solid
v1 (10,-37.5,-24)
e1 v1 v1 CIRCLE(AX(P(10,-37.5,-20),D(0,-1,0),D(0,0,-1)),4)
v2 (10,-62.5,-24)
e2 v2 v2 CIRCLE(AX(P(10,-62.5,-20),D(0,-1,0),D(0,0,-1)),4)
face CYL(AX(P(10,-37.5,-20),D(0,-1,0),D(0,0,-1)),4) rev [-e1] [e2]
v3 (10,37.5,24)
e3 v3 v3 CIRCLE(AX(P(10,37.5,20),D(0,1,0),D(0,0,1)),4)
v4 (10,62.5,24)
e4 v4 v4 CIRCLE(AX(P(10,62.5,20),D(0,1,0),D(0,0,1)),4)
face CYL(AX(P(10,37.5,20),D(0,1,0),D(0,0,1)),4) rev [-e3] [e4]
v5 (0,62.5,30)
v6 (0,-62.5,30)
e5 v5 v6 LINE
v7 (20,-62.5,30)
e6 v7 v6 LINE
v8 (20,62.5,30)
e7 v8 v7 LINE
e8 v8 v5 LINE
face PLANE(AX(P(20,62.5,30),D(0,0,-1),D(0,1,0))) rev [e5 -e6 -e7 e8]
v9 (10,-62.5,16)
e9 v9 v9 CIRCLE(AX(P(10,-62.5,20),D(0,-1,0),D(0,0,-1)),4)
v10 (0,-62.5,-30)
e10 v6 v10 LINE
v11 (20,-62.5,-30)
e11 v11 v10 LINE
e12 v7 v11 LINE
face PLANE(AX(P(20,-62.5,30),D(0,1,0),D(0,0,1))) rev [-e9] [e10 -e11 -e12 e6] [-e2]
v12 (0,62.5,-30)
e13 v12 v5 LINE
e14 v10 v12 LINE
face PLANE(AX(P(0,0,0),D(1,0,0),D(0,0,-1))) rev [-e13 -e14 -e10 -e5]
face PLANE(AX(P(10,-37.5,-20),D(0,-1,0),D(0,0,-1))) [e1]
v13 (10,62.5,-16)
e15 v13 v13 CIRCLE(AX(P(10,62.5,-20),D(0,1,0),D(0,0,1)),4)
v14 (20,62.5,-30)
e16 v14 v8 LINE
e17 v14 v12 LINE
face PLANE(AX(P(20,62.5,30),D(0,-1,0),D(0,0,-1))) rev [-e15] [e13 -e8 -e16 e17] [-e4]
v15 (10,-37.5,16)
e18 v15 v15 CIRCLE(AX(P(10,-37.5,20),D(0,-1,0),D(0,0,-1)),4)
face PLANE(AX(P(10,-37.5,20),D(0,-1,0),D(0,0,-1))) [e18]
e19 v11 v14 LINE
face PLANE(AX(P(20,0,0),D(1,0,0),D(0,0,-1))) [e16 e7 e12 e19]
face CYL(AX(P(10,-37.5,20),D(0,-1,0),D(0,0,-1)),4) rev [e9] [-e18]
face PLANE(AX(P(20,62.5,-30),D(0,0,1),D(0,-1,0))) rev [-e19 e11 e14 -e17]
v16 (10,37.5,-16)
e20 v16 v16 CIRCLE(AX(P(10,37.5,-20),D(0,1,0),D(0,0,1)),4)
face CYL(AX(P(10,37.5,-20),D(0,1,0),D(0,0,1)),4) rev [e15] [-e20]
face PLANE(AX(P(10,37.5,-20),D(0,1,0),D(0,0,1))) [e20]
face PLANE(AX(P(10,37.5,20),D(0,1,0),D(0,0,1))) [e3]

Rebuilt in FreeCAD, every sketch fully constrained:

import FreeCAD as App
import Part
import Sketcher
from FreeCAD import Vector

doc = App.newDocument("Part")
body = doc.addObject("PartDesign::Body", "Body")

# Sketch on YZ plane
sketch1 = doc.addObject("Sketcher::SketchObject", "Sketch")
body.addObject(sketch1)
sketch1.AttachmentSupport = (doc.YZ_Plane, [""])
sketch1.MapMode = "FlatFace"
sketch1.addGeometry([
    Part.LineSegment(Vector(62, 30, 0), Vector(-62, 30, 0)),
    Part.LineSegment(Vector(-62, 30, 0), Vector(-62, -30, 0)),
    Part.LineSegment(Vector(-62, -30, 0), Vector(62, -30, 0)),
    Part.LineSegment(Vector(62, -30, 0), Vector(62, 30, 0)),
], False)
sketch1.addConstraint([
    Sketcher.Constraint("Coincident", 0, 2, 1, 1),
    Sketcher.Constraint("Coincident", 1, 2, 2, 1),
    Sketcher.Constraint("Coincident", 2, 2, 3, 1),
    Sketcher.Constraint("Coincident", 3, 2, 0, 1),
    Sketcher.Constraint("Horizontal", 0),
    Sketcher.Constraint("Vertical", 1),
    Sketcher.Constraint("Horizontal", 2),
    Sketcher.Constraint("Vertical", 3),
    Sketcher.Constraint("Symmetric", 0, 2, 2, 2, -1, 1),
    Sketcher.Constraint("DistanceX", 0, 2, 0, 1, 125.0),
    Sketcher.Constraint("DistanceY", 1, 2, 1, 1, 60.0),
])
pad1 = doc.addObject("PartDesign::Pad", "Pad")
body.addObject(pad1)
pad1.Profile = sketch1
pad1.Length = 20

# Sketch on XZ plane
sketch2 = doc.addObject("Sketcher::SketchObject", "Sketch001")
body.addObject(sketch2)
sketch2.AttachmentSupport = (doc.XZ_Plane, [""])
sketch2.MapMode = "FlatFace"
sketch2.AttachmentOffset = App.Placement(Vector(0, 0, -62.5), App.Rotation())
sketch2.addGeometry([
    Part.Circle(Vector(10, -20, 0), Vector(0, 0, 1), 4),
    Part.Circle(Vector(10, 20, 0), Vector(0, 0, 1), 4),
], False)
sketch2.addConstraint([
    Sketcher.Constraint("Equal", 0, 1),
    Sketcher.Constraint("Symmetric", 0, 3, 1, 3, -1),
    Sketcher.Constraint("Diameter", 0, 8.0),
    Sketcher.Constraint("DistanceX", -1, 1, 0, 3, 10.0),
    Sketcher.Constraint("DistanceY", 0, 3, -1, 1, 20.0),
])
pocket1 = doc.addObject("PartDesign::Pocket", "Pocket")
body.addObject(pocket1)
pocket1.Profile = sketch2
pocket1.Length = 25
pocket1.Reversed = True

# Sketch on XZ plane
sketch3 = doc.addObject("Sketcher::SketchObject", "Sketch002")
body.addObject(sketch3)
sketch3.AttachmentSupport = (doc.XZ_Plane, [""])
sketch3.MapMode = "FlatFace"
sketch3.AttachmentOffset = App.Placement(Vector(0, 0, 37.5), App.Rotation())
sketch3.addGeometry([
    Part.Circle(Vector(10, 20, 0), Vector(0, 0, 1), 4),
    Part.Circle(Vector(10, -20, 0), Vector(0, 0, 1), 4),
], False)
sketch3.addConstraint([
    Sketcher.Constraint("Equal", 0, 1),
    Sketcher.Constraint("Symmetric", 0, 3, 1, 3, -1),
    Sketcher.Constraint("Diameter", 0, 8.0),
    Sketcher.Constraint("DistanceX", -1, 1, 0, 3, 10.0),
    Sketcher.Constraint("DistanceY", -1, 1, 0, 3, 20.0),
])
pocket2 = doc.addObject("PartDesign::Pocket", "Pocket001")
body.addObject(pocket2)
pocket2.Profile = sketch3
pocket2.Length = 25
pocket2.Reversed = True

doc.recompute()
